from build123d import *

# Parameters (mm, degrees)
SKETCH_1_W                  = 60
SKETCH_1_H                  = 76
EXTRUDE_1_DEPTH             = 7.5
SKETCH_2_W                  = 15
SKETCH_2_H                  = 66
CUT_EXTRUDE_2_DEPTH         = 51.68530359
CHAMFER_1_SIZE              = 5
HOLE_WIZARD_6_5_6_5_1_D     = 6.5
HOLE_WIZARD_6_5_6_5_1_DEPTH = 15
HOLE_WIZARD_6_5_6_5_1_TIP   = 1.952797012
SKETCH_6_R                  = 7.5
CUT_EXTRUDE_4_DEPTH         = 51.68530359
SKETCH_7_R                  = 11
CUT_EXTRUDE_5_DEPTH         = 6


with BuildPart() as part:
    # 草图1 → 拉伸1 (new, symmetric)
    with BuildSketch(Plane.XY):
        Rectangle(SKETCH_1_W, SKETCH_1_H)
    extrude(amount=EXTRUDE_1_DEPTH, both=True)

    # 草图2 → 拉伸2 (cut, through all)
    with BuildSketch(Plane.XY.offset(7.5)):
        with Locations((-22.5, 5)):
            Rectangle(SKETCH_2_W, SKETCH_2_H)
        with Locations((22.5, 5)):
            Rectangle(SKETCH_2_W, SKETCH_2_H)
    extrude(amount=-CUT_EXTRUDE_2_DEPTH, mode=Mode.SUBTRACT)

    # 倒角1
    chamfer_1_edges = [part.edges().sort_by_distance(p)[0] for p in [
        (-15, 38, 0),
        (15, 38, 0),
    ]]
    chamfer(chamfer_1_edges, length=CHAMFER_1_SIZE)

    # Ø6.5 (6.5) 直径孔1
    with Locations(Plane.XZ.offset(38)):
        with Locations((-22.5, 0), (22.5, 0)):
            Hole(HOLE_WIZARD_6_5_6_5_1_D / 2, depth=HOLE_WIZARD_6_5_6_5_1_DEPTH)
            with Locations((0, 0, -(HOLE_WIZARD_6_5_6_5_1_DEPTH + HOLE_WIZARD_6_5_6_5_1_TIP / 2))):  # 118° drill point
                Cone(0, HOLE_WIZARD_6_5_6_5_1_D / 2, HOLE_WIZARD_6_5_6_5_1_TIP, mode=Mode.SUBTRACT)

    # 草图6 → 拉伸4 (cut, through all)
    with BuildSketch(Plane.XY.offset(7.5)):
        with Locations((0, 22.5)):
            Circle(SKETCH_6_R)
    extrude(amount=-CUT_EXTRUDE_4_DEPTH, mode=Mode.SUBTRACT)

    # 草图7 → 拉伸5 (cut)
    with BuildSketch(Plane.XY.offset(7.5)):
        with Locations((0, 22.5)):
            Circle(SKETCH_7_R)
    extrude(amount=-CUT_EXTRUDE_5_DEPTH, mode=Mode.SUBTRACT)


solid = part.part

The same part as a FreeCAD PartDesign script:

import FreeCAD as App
import Part
import Sketcher
from FreeCAD import Vector
Q = App.Units.Quantity


def edges_at(feature, points):
    """Names of the edges that pass closest to the given points."""
    edges = feature.Shape.Edges
    near = lambda p: min(range(len(edges)), key=lambda i: edges[i].distToShape(Part.Vertex(*p))[0])
    return sorted({f"Edge{near(p) + 1}" for p in points})

doc = App.newDocument("Part")
body = doc.addObject("PartDesign::Body", "Body")

# Sketch on XY plane
sketch1 = body.newObject("Sketcher::SketchObject", "Sketch")
sketch1.AttachmentSupport = (doc.getObject("XY_Plane"), [""])
sketch1.MapMode = "FlatFace"
sketch1.addGeometry([
    Part.LineSegment(Vector(-30, 38, 0), Vector(-30, -38, 0)),
    Part.LineSegment(Vector(-30, -38, 0), Vector(30, -38, 0)),
    Part.LineSegment(Vector(30, -38, 0), Vector(30, 38, 0)),
    Part.LineSegment(Vector(30, 38, 0), Vector(-30, 38, 0)),
], False)
sketch1.addConstraint([
    Sketcher.Constraint("Coincident", 0, 2, 1, 1),
    Sketcher.Constraint("Coincident", 1, 2, 2, 1),
    Sketcher.Constraint("Coincident", 2, 2, 3, 1),
    Sketcher.Constraint("Coincident", 3, 2, 0, 1),
    Sketcher.Constraint("Vertical", 0),
    Sketcher.Constraint("Horizontal", 1),
    Sketcher.Constraint("Vertical", 2),
    Sketcher.Constraint("Horizontal", 3),
    Sketcher.Constraint("Symmetric", 0, 2, 2, 2, -1, 1),
    Sketcher.Constraint("DistanceX", 1, 1, 1, 2, Q("60 mm")),
    Sketcher.Constraint("DistanceY", 0, 2, 0, 1, Q("76 mm")),
])
pad1 = body.newObject("PartDesign::Pad", "Pad")
pad1.Profile = sketch1
pad1.Length = 15
pad1.Midplane = True

# Sketch on XY plane
sketch2 = body.newObject("Sketcher::SketchObject", "Sketch001")
sketch2.AttachmentSupport = (doc.getObject("XY_Plane"), [""])
sketch2.MapMode = "FlatFace"
sketch2.AttachmentOffset = App.Placement(Vector(0, 0, 7.5), App.Rotation())
sketch2.addGeometry([
    Part.LineSegment(Vector(-30, 38, 0), Vector(-30, -28, 0)),  # 0
    Part.LineSegment(Vector(-30, -28, 0), Vector(-15, -28, 0)),  # 1
    Part.LineSegment(Vector(-15, -28, 0), Vector(-15, 38, 0)),  # 2
    Part.LineSegment(Vector(-15, 38, 0), Vector(-30, 38, 0)),  # 3
    Part.LineSegment(Vector(15, 38, 0), Vector(15, -28, 0)),  # 4
    Part.LineSegment(Vector(15, -28, 0), Vector(30, -28, 0)),  # 5
    Part.LineSegment(Vector(30, -28, 0), Vector(30, 38, 0)),  # 6
    Part.LineSegment(Vector(30, 38, 0), Vector(15, 38, 0)),  # 7
], False)
sketch2.addConstraint([
    Sketcher.Constraint("Coincident", 0, 2, 1, 1),
    Sketcher.Constraint("Coincident", 1, 2, 2, 1),
    Sketcher.Constraint("Coincident", 2, 2, 3, 1),
    Sketcher.Constraint("Coincident", 3, 2, 0, 1),
    Sketcher.Constraint("Coincident", 4, 2, 5, 1),
    Sketcher.Constraint("Coincident", 5, 2, 6, 1),
    Sketcher.Constraint("Coincident", 6, 2, 7, 1),
    Sketcher.Constraint("Coincident", 7, 2, 4, 1),
    Sketcher.Constraint("Vertical", 0),
    Sketcher.Constraint("Horizontal", 1),
    Sketcher.Constraint("Vertical", 2),
    Sketcher.Constraint("Horizontal", 3),
    Sketcher.Constraint("Vertical", 4),
    Sketcher.Constraint("Horizontal", 5),
    Sketcher.Constraint("Vertical", 6),
    Sketcher.Constraint("Horizontal", 7),
    Sketcher.Constraint("Symmetric", 1, 2, 4, 2, -2),
    Sketcher.Constraint("Symmetric", 3, 2, 6, 2, -2),
    Sketcher.Constraint("DistanceX", 1, 1, 1, 2, Q("15 mm")),
    Sketcher.Constraint("DistanceY", 0, 2, 0, 1, Q("66 mm")),
    Sketcher.Constraint("DistanceX", 0, 2, -1, 1, Q("30 mm")),
    Sketcher.Constraint("DistanceY", 0, 2, -1, 1, Q("28 mm")),
])
pocket1 = body.newObject("PartDesign::Pocket", "Pocket")
pocket1.Profile = sketch2
pocket1.Type = "ThroughAll"
doc.recompute()

chamfer = body.newObject("PartDesign::Chamfer", "Chamfer")
chamfer.Base = (pocket1, edges_at(pocket1, [(-15, 38, 0), (15, 38, 0)]))
chamfer.Size = 5

# Sketch on XZ plane
sketch3 = body.newObject("Sketcher::SketchObject", "Sketch002")
sketch3.AttachmentSupport = (doc.getObject("XZ_Plane"), [""])
sketch3.MapMode = "FlatFace"
sketch3.AttachmentOffset = App.Placement(Vector(0, 0, 38), App.Rotation())
sketch3.addGeometry([
    Part.Circle(Vector(-22.5, 0, 0), Vector(0, 0, 1), 3.2),
    Part.Circle(Vector(22.5, 0, 0), Vector(0, 0, 1), 3.2),
], False)
sketch3.addConstraint([
    Sketcher.Constraint("Equal", 0, 1),
    Sketcher.Constraint("Symmetric", 0, 3, 1, 3, -1, 1),
    Sketcher.Constraint("PointOnObject", 0, 3, -1),
    Sketcher.Constraint("Diameter", 0, Q("6.5 mm")),
    Sketcher.Constraint("DistanceX", 0, 3, 1, 3, Q("45 mm")),
])
doc.recompute()
hole = body.newObject("PartDesign::Hole", "Hole")
hole.Profile = sketch3
hole.ThreadType = "None"
hole.Diameter = 6.5
hole.DepthType = "Dimension"
hole.Depth = 15
hole.DrillPoint = "Angled"
hole.DrillPointAngle = 118

# Sketch on XY plane
sketch4 = body.newObject("Sketcher::SketchObject", "Sketch003")
sketch4.AttachmentSupport = (doc.getObject("XY_Plane"), [""])
sketch4.MapMode = "FlatFace"
sketch4.AttachmentOffset = App.Placement(Vector(0, 0, 7.5), App.Rotation())
sketch4.addGeometry(Part.Circle(Vector(0, 22, 0), Vector(0, 0, 1), 8), False)
sketch4.addConstraint([
    Sketcher.Constraint("PointOnObject", 0, 3, -2),
    Sketcher.Constraint("Diameter", 0, Q("15 mm")),
    Sketcher.Constraint("DistanceY", -1, 1, 0, 3, Q("22.5 mm")),
])
pocket2 = body.newObject("PartDesign::Pocket", "Pocket001")
pocket2.Profile = sketch4
pocket2.Type = "ThroughAll"

# Sketch on XY plane
sketch5 = body.newObject("Sketcher::SketchObject", "Sketch004")
sketch5.AttachmentSupport = (doc.getObject("XY_Plane"), [""])
sketch5.MapMode = "FlatFace"
sketch5.AttachmentOffset = App.Placement(Vector(0, 0, 7.5), App.Rotation())
sketch5.addGeometry(Part.Circle(Vector(0, 22, 0), Vector(0, 0, 1), 11), False)
sketch5.addConstraint([
    Sketcher.Constraint("PointOnObject", 0, 3, -2),
    Sketcher.Constraint("Diameter", 0, Q("22 mm")),
    Sketcher.Constraint("DistanceY", -1, 1, 0, 3, Q("22.5 mm")),
])
pocket3 = body.newObject("PartDesign::Pocket", "Pocket002")
pocket3.Profile = sketch5
pocket3.Length = 6

doc.recompute()
